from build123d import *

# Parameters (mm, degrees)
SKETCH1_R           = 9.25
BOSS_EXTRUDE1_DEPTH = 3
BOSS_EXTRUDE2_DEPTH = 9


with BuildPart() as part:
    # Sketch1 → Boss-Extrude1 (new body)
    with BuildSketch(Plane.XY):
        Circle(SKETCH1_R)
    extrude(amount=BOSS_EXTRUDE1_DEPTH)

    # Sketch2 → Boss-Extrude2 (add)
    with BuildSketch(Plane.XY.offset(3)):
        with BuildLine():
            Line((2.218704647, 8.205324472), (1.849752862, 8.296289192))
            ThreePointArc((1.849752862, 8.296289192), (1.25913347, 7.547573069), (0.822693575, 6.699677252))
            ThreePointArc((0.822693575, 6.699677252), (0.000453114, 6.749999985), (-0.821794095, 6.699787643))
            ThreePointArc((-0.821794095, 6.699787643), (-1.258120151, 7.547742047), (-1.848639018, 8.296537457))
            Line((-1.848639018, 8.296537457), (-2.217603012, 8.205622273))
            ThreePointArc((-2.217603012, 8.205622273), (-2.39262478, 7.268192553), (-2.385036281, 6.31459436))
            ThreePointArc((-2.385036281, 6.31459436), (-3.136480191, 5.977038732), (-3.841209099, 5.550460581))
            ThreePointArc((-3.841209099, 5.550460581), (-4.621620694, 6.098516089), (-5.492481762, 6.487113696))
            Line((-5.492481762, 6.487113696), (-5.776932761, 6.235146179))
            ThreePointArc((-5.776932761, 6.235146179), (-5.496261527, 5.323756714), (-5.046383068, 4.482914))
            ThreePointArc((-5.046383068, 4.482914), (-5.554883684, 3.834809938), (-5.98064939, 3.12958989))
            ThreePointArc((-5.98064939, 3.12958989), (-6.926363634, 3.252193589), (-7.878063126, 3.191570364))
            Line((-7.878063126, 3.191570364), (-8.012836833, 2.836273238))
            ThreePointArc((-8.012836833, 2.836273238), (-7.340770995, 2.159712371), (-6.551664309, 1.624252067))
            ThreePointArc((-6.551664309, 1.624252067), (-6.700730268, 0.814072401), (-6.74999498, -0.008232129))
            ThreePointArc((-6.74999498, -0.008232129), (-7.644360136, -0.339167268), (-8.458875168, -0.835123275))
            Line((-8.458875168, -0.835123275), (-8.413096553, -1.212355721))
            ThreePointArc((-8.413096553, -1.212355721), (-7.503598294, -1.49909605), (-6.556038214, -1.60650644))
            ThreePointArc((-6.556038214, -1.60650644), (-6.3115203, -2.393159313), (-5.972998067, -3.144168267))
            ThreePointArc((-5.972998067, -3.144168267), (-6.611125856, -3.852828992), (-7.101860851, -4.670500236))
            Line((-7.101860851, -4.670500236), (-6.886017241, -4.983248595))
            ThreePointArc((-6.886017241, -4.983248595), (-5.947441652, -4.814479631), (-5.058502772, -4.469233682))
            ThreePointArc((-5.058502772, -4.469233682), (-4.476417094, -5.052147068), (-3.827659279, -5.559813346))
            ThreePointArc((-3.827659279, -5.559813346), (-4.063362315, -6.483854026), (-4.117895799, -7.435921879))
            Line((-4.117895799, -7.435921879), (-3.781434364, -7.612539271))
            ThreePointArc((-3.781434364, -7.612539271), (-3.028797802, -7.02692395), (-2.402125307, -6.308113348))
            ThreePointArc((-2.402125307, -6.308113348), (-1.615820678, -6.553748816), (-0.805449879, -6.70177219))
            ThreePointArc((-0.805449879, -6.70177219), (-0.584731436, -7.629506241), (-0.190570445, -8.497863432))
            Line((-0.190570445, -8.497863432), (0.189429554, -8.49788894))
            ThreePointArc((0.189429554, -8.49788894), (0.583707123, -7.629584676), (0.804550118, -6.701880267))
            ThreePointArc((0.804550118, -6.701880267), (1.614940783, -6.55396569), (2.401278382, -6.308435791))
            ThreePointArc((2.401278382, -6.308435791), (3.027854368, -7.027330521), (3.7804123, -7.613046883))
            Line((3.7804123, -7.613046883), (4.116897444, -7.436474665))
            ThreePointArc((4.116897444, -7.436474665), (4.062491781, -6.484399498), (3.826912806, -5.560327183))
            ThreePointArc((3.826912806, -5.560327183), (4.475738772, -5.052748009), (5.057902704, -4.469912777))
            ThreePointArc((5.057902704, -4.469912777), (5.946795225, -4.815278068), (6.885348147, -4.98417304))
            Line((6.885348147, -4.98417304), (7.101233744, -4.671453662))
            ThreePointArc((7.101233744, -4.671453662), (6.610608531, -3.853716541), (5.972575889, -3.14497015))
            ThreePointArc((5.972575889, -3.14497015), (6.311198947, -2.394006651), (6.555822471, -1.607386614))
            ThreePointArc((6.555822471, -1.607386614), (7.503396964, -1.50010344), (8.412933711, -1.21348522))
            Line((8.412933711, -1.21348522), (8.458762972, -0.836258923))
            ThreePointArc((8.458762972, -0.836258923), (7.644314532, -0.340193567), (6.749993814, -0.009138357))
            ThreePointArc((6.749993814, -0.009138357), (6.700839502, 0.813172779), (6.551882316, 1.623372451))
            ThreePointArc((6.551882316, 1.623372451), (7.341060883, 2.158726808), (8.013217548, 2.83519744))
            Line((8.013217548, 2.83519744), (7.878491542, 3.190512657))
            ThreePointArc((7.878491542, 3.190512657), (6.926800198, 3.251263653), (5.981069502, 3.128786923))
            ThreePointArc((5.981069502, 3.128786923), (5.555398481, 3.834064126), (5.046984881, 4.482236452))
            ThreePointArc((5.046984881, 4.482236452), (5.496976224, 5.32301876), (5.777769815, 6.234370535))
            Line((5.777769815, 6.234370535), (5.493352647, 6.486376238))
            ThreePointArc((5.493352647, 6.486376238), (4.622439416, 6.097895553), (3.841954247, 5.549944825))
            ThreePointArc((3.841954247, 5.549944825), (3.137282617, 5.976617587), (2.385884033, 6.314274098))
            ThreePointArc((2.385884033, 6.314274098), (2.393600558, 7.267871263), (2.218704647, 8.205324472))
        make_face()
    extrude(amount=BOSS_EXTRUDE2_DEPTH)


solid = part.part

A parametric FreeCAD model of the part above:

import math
import FreeCAD as App
import Part
import Sketcher
from FreeCAD import Vector
Q = App.Units.Quantity

doc = App.newDocument("Part")
body = doc.addObject("PartDesign::Body", "Body")

sketch1 = body.newObject("Sketcher::SketchObject", "Sketch")
sketch1.AttachmentSupport = (doc.getObject("XY_Plane"), [""])
sketch1.MapMode = "FlatFace"
sketch1.addGeometry(Part.Circle(Vector(0, 0, 0), Vector(0, 0, 1), 9), False)
sketch1.addConstraint(Sketcher.Constraint("Coincident", 0, 3, -1, 1))
sketch1.addConstraint(Sketcher.Constraint("Diameter", 0, Q("18.5 mm")))
pad1 = body.newObject("PartDesign::Pad", "Pad")
pad1.Profile = sketch1
pad1.Length = 3

sketch2 = body.newObject("Sketcher::SketchObject", "Sketch001")
sketch2.AttachmentSupport = (doc.getObject("XY_Plane"), [""])
sketch2.MapMode = "FlatFace"
sketch2.AttachmentOffset = App.Placement(Vector(0, 0, 3), App.Rotation())
sketch2.addGeometry(Part.LineSegment(Vector(2.22, 8.21, 0), Vector(1.85, 8.3, 0)), False)
sketch2.addGeometry(Part.ArcOfCircle(Part.Circle(Vector(5.43, 4.86, 0), Vector(0, 0, 1), 4.96), math.radians(136), math.radians(158)), False)
sketch2.addGeometry(Part.ArcOfCircle(Part.Circle(Vector(0, 0, 0), Vector(0, 0, 1), 6.75), math.radians(83), math.radians(96.99)), False)
sketch2.addGeometry(Part.ArcOfCircle(Part.Circle(Vector(-5.43, 4.86, 0), Vector(0, 0, 1), 4.96), math.radians(22), math.radians(44)), False)
sketch2.addGeometry(Part.LineSegment(Vector(-1.85, 8.3, 0), Vector(-2.22, 8.21, 0)), False)
sketch2.addGeometry(Part.ArcOfCircle(Part.Circle(Vector(2.55, 6.83, 0), Vector(0, 0, 1), 4.96), math.radians(164), math.radians(186)), False)
sketch2.addGeometry(Part.ArcOfCircle(Part.Circle(Vector(0, 0, 0), Vector(0, 0, 1), 6.75), math.radians(110.69), math.radians(124.69)), False)
sketch2.addGeometry(Part.ArcOfCircle(Part.Circle(Vector(-7.07, 1.78, 0), Vector(0, 0, 1), 4.96), math.radians(49), math.radians(71)), False)
sketch2.addGeometry(Part.LineSegment(Vector(-5.49, 6.49, 0), Vector(-5.78, 6.24, 0)), False)
sketch2.addGeometry(Part.ArcOfCircle(Part.Circle(Vector(-0.92, 7.23, 0), Vector(0, 0, 1), 4.96), math.radians(-168), math.radians(-146)), False)
sketch2.addGeometry(Part.ArcOfCircle(Part.Circle(Vector(0, 0, 0), Vector(0, 0, 1), 6.75), math.radians(138.38), math.radians(152.38)), False)
sketch2.addGeometry(Part.ArcOfCircle(Part.Circle(Vector(-7.09, -1.71, 0), Vector(0, 0, 1), 4.96), math.radians(77), math.radians(99)), False)
sketch2.addGeometry(Part.LineSegment(Vector(-7.88, 3.19, 0), Vector(-8.01, 2.84, 0)), False)
sketch2.addGeometry(Part.ArcOfCircle(Part.Circle(Vector(-4.17, 5.98, 0), Vector(0, 0, 1), 4.96), math.radians(-141), math.radians(-119)), False)
sketch2.addGeometry(Part.ArcOfCircle(Part.Circle(Vector(0, 0, 0), Vector(0, 0, 1), 6.75), math.radians(166.08), math.radians(180.07)), False)
sketch2.addGeometry(Part.ArcOfCircle(Part.Circle(Vector(-5.48, -4.8, 0), Vector(0, 0, 1), 4.96), math.radians(105), math.radians(127)), False)
sketch2.addGeometry(Part.LineSegment(Vector(-8.46, -0.84, 0), Vector(-8.41, -1.21, 0)), False)
sketch2.addGeometry(Part.ArcOfCircle(Part.Circle(Vector(-6.47, 3.35, 0), Vector(0, 0, 1), 4.96), math.radians(-113), math.radians(-91)), False)
sketch2.addGeometry(Part.ArcOfCircle(Part.Circle(Vector(0, 0, 0), Vector(0, 0, 1), 6.75), math.radians(-166.23), math.radians(-152.24)), False)
sketch2.addGeometry(Part.ArcOfCircle(Part.Circle(Vector(-2.62, -6.8, 0), Vector(0, 0, 1), 4.96), math.radians(132), math.radians(155)), False)
sketch2.addGeometry(Part.LineSegment(Vector(-7.1, -4.67, 0), Vector(-6.89, -4.98, 0)), False)
sketch2.addGeometry(Part.ArcOfCircle(Part.Circle(Vector(-7.29, -0.04, 0), Vector(0, 0, 1), 4.96), math.radians(-85), math.radians(-63)), False)
sketch2.addGeometry(Part.ArcOfCircle(Part.Circle(Vector(0, 0, 0), Vector(0, 0, 1), 6.75), math.radians(-138.54), math.radians(-124.55)), False)
sketch2.addGeometry(Part.ArcOfCircle(Part.Circle(Vector(0.84, -7.24, 0), Vector(0, 0, 1), 4.96), math.radians(160), math.radians(182)), False)
sketch2.addGeometry(Part.LineSegment(Vector(-4.12, -7.44, 0), Vector(-3.78, -7.61, 0)), False)
sketch2.addGeometry(Part.ArcOfCircle(Part.Circle(Vector(-6.44, -3.42, 0), Vector(0, 0, 1), 4.96), math.radians(-58), math.radians(-36)), False)
sketch2.addGeometry(Part.ArcOfCircle(Part.Circle(Vector(0, 0, 0), Vector(0, 0, 1), 6.75), math.radians(-110.85), math.radians(-96.85)), False)
sketch2.addGeometry(Part.ArcOfCircle(Part.Circle(Vector(4.11, -6.02, 0), Vector(0, 0, 1), 4.96), math.radians(-172), math.radians(-150)), False)
sketch2.addGeometry(Part.LineSegment(Vector(-0.19, -8.5, 0), Vector(0.19, -8.5, 0)), False)
sketch2.addGeometry(Part.ArcOfCircle(Part.Circle(Vector(-4.11, -6.02, 0), Vector(0, 0, 1), 4.96), math.radians(-30), math.radians(-8)), False)
sketch2.addGeometry(Part.ArcOfCircle(Part.Circle(Vector(0, 0, 0), Vector(0, 0, 1), 6.75), math.radians(-83.15), math.radians(-69.16)), False)
sketch2.addGeometry(Part.ArcOfCircle(Part.Circle(Vector(6.44, -3.42, 0), Vector(0, 0, 1), 4.96), math.radians(-144), math.radians(-122)), False)
sketch2.addGeometry(Part.LineSegment(Vector(3.78, -7.61, 0), Vector(4.12, -7.44, 0)), False)
sketch2.addGeometry(Part.ArcOfCircle(Part.Circle(Vector(-0.84, -7.24, 0), Vector(0, 0, 1), 4.96), math.radians(-2), math.radians(20)), False)
sketch2.addGeometry(Part.ArcOfCircle(Part.Circle(Vector(0, 0, 0), Vector(0, 0, 1), 6.75), math.radians(-55.46), math.radians(-41.47)), False)
sketch2.addGeometry(Part.ArcOfCircle(Part.Circle(Vector(7.29, -0.04, 0), Vector(0, 0, 1), 4.96), math.radians(-117), math.radians(-95)), False)
sketch2.addGeometry(Part.LineSegment(Vector(6.89, -4.98, 0), Vector(7.1, -4.67, 0)), False)
sketch2.addGeometry(Part.ArcOfCircle(Part.Circle(Vector(2.62, -6.8, 0), Vector(0, 0, 1), 4.96), math.radians(25), math.radians(48)), False)
sketch2.addGeometry(Part.ArcOfCircle(Part.Circle(Vector(0, 0, 0), Vector(0, 0, 1), 6.75), math.radians(-27.77), math.radians(-13.78)), False)
sketch2.addGeometry(Part.ArcOfCircle(Part.Circle(Vector(6.47, 3.35, 0), Vector(0, 0, 1), 4.96), math.radians(-89), math.radians(-67)), False)
sketch2.addGeometry(Part.LineSegment(Vector(8.41, -1.21, 0), Vector(8.46, -0.84, 0)), False)
sketch2.addGeometry(Part.ArcOfCircle(Part.Circle(Vector(5.48, -4.81, 0), Vector(0, 0, 1), 4.96), math.radians(53), math.radians(75)), False)
sketch2.addGeometry(Part.ArcOfCircle(Part.Circle(Vector(0, 0, 0), Vector(0, 0, 1), 6.75), math.radians(-0.08), math.radians(13.92)), False)
sketch2.addGeometry(Part.ArcOfCircle(Part.Circle(Vector(4.17, 5.98, 0), Vector(0, 0, 1), 4.96), math.radians(-61), math.radians(-39)), False)
sketch2.addGeometry(Part.LineSegment(Vector(8.01, 2.84, 0), Vector(7.88, 3.19, 0)), False)
sketch2.addGeometry(Part.ArcOfCircle(Part.Circle(Vector(7.09, -1.71, 0), Vector(0, 0, 1), 4.96), math.radians(81), math.radians(103)), False)
sketch2.addGeometry(Part.ArcOfCircle(Part.Circle(Vector(0, 0, 0), Vector(0, 0, 1), 6.75), math.radians(27.61), math.radians(41.61)), False)
sketch2.addGeometry(Part.ArcOfCircle(Part.Circle(Vector(0.92, 7.23, 0), Vector(0, 0, 1), 4.96), math.radians(-34), math.radians(-12)), False)
sketch2.addGeometry(Part.LineSegment(Vector(5.78, 6.23, 0), Vector(5.49, 6.49, 0)), False)
sketch2.addGeometry(Part.ArcOfCircle(Part.Circle(Vector(7.07, 1.78, 0), Vector(0, 0, 1), 4.96), math.radians(109), math.radians(131)), False)
sketch2.addGeometry(Part.ArcOfCircle(Part.Circle(Vector(0, 0, 0), Vector(0, 0, 1), 6.75), math.radians(55.31), math.radians(69.3)), False)
sketch2.addGeometry(Part.ArcOfCircle(Part.Circle(Vector(-2.55, 6.83, 0), Vector(0, 0, 1), 4.96), math.radians(-6), math.radians(16)), False)
sketch2.addConstraint(Sketcher.Constraint("Coincident", 0, 2, 1, 1))
sketch2.addConstraint(Sketcher.Constraint("Coincident", 1, 2, 2, 1))
sketch2.addConstraint(Sketcher.Constraint("Coincident", 2, 2, 3, 1))
sketch2.addConstraint(Sketcher.Constraint("Coincident", 3, 2, 4, 1))
sketch2.addConstraint(Sketcher.Constraint("Coincident", 4, 2, 5, 1))
sketch2.addConstraint(Sketcher.Constraint("Coincident", 5, 2, 6, 1))
sketch2.addConstraint(Sketcher.Constraint("Coincident", 6, 2, 7, 1))
sketch2.addConstraint(Sketcher.Constraint("Coincident", 7, 2, 8, 1))
sketch2.addConstraint(Sketcher.Constraint("Coincident", 8, 2, 9, 1))
sketch2.addConstraint(Sketcher.Constraint("Coincident", 9, 2, 10, 1))
sketch2.addConstraint(Sketcher.Constraint("Coincident", 10, 2, 11, 1))
sketch2.addConstraint(Sketcher.Constraint("Coincident", 11, 2, 12, 1))
sketch2.addConstraint(Sketcher.Constraint("Coincident", 12, 2, 13, 1))
sketch2.addConstraint(Sketcher.Constraint("Coincident", 13, 2, 14, 1))
sketch2.addConstraint(Sketcher.Constraint("Coincident", 14, 2, 15, 1))
sketch2.addConstraint(Sketcher.Constraint("Coincident", 15, 2, 16, 1))
sketch2.addConstraint(Sketcher.Constraint("Coincident", 16, 2, 17, 1))
sketch2.addConstraint(Sketcher.Constraint("Coincident", 17, 2, 18, 1))
sketch2.addConstraint(Sketcher.Constraint("Coincident", 18, 2, 19, 1))
sketch2.addConstraint(Sketcher.Constraint("Coincident", 19, 2, 20, 1))
sketch2.addConstraint(Sketcher.Constraint("Coincident", 20, 2, 21, 1))
sketch2.addConstraint(Sketcher.Constraint("Coincident", 21, 2, 22, 1))
sketch2.addConstraint(Sketcher.Constraint("Coincident", 22, 2, 23, 1))
sketch2.addConstraint(Sketcher.Constraint("Coincident", 23, 2, 24, 1))
sketch2.addConstraint(Sketcher.Constraint("Coincident", 24, 2, 25, 1))
sketch2.addConstraint(Sketcher.Constraint("Coincident", 25, 2, 26, 1))
sketch2.addConstraint(Sketcher.Constraint("Coincident", 26, 2, 27, 1))
sketch2.addConstraint(Sketcher.Constraint("Coincident", 27, 2, 28, 1))
sketch2.addConstraint(Sketcher.Constraint("Coincident", 28, 2, 29, 1))
sketch2.addConstraint(Sketcher.Constraint("Coincident", 29, 2, 30, 1))
sketch2.addConstraint(Sketcher.Constraint("Coincident", 30, 2, 31, 1))
sketch2.addConstraint(Sketcher.Constraint("Coincident", 31, 2, 32, 1))
sketch2.addConstraint(Sketcher.Constraint("Coincident", 32, 2, 33, 1))
sketch2.addConstraint(Sketcher.Constraint("Coincident", 33, 2, 34, 1))
sketch2.addConstraint(Sketcher.Constraint("Coincident", 34, 2, 35, 1))
sketch2.addConstraint(Sketcher.Constraint("Coincident", 35, 2, 36, 1))
sketch2.addConstraint(Sketcher.Constraint("Coincident", 36, 2, 37, 1))
sketch2.addConstraint(Sketcher.Constraint("Coincident", 37, 2, 38, 1))
sketch2.addConstraint(Sketcher.Constraint("Coincident", 38, 2, 39, 1))
sketch2.addConstraint(Sketcher.Constraint("Coincident", 39, 2, 40, 1))
sketch2.addConstraint(Sketcher.Constraint("Coincident", 40, 2, 41, 1))
sketch2.addConstraint(Sketcher.Constraint("Coincident", 41, 2, 42, 1))
sketch2.addConstraint(Sketcher.Constraint("Coincident", 42, 2, 43, 1))
sketch2.addConstraint(Sketcher.Constraint("Coincident", 43, 2, 44, 1))
sketch2.addConstraint(Sketcher.Constraint("Coincident", 44, 2, 45, 1))
sketch2.addConstraint(Sketcher.Constraint("Coincident", 45, 2, 46, 1))
sketch2.addConstraint(Sketcher.Constraint("Coincident", 46, 2, 47, 1))
sketch2.addConstraint(Sketcher.Constraint("Coincident", 47, 2, 48, 1))
sketch2.addConstraint(Sketcher.Constraint("Coincident", 48, 2, 49, 1))
sketch2.addConstraint(Sketcher.Constraint("Coincident", 49, 2, 50, 1))
sketch2.addConstraint(Sketcher.Constraint("Coincident", 50, 2, 51, 1))
sketch2.addConstraint(Sketcher.Constraint("Coincident", 51, 2, 0, 1))
sketch2.addConstraint(Sketcher.Constraint("Coincident", 2, 3, -1, 1))
sketch2.addConstraint(Sketcher.Constraint("Coincident", 6, 3, -1, 1))
sketch2.addConstraint(Sketcher.Constraint("Coincident", 10, 3, -1, 1))
sketch2.addConstraint(Sketcher.Constraint("Coincident", 14, 3, -1, 1))
sketch2.addConstraint(Sketcher.Constraint("Coincident", 18, 3, -1, 1))
sketch2.addConstraint(Sketcher.Constraint("Coincident", 22, 3, -1, 1))
sketch2.addConstraint(Sketcher.Constraint("Coincident", 26, 3, -1, 1))
sketch2.addConstraint(Sketcher.Constraint("Coincident", 30, 3, -1, 1))
sketch2.addConstraint(Sketcher.Constraint("Coincident", 34, 3, -1, 1))
sketch2.addConstraint(Sketcher.Constraint("Coincident", 38, 3, -1, 1))
sketch2.addConstraint(Sketcher.Constraint("Coincident", 42, 3, -1, 1))
sketch2.addConstraint(Sketcher.Constraint("Coincident", 46, 3, -1, 1))
sketch2.addConstraint(Sketcher.Constraint("Coincident", 50, 3, -1, 1))
sketch2.addConstraint(Sketcher.Constraint("Equal", 1, 3))
sketch2.addConstraint(Sketcher.Constraint("Equal", 3, 5))
sketch2.addConstraint(Sketcher.Constraint("Equal", 2, 6))
sketch2.addConstraint(Sketcher.Constraint("Equal", 5, 7))
sketch2.addConstraint(Sketcher.Constraint("Equal", 7, 9))
sketch2.addConstraint(Sketcher.Constraint("Equal", 6, 10))
sketch2.addConstraint(Sketcher.Constraint("Equal", 9, 11))
sketch2.addConstraint(Sketcher.Constraint("Equal", 11, 13))
sketch2.addConstraint(Sketcher.Constraint("Equal", 10, 14))
sketch2.addConstraint(Sketcher.Constraint("Equal", 13, 15))
sketch2.addConstraint(Sketcher.Constraint("Equal", 15, 17))
sketch2.addConstraint(Sketcher.Constraint("Equal", 14, 18))
sketch2.addConstraint(Sketcher.Constraint("Equal", 17, 19))
sketch2.addConstraint(Sketcher.Constraint("Equal", 19, 21))
sketch2.addConstraint(Sketcher.Constraint("Equal", 18, 22))
sketch2.addConstraint(Sketcher.Constraint("Equal", 21, 23))
sketch2.addConstraint(Sketcher.Constraint("Equal", 23, 25))
sketch2.addConstraint(Sketcher.Constraint("Equal", 22, 26))
sketch2.addConstraint(Sketcher.Constraint("Equal", 25, 27))
sketch2.addConstraint(Sketcher.Constraint("Equal", 27, 29))
sketch2.addConstraint(Sketcher.Constraint("Equal", 26, 30))
sketch2.addConstraint(Sketcher.Constraint("Equal", 29, 31))
sketch2.addConstraint(Sketcher.Constraint("Equal", 31, 33))
sketch2.addConstraint(Sketcher.Constraint("Equal", 30, 34))
sketch2.addConstraint(Sketcher.Constraint("Equal", 33, 35))
sketch2.addConstraint(Sketcher.Constraint("Equal", 35, 37))
sketch2.addConstraint(Sketcher.Constraint("Equal", 34, 38))
sketch2.addConstraint(Sketcher.Constraint("Equal", 37, 39))
sketch2.addConstraint(Sketcher.Constraint("Equal", 39, 41))
sketch2.addConstraint(Sketcher.Constraint("Equal", 38, 42))
sketch2.addConstraint(Sketcher.Constraint("Equal", 41, 43))
sketch2.addConstraint(Sketcher.Constraint("Equal", 43, 45))
sketch2.addConstraint(Sketcher.Constraint("Equal", 42, 46))
sketch2.addConstraint(Sketcher.Constraint("Equal", 45, 47))
sketch2.addConstraint(Sketcher.Constraint("Equal", 47, 49))
sketch2.addConstraint(Sketcher.Constraint("Equal", 46, 50))
sketch2.addConstraint(Sketcher.Constraint("Equal", 49, 51))
sketch2.addConstraint(Sketcher.Constraint("Equal", 0, 4))
sketch2.addConstraint(Sketcher.Constraint("Equal", 4, 8))
sketch2.addConstraint(Sketcher.Constraint("Equal", 8, 12))
sketch2.addConstraint(Sketcher.Constraint("Equal", 12, 16))
sketch2.addConstraint(Sketcher.Constraint("Equal", 16, 20))
sketch2.addConstraint(Sketcher.Constraint("Equal", 20, 24))
sketch2.addConstraint(Sketcher.Constraint("Equal", 24, 28))
sketch2.addConstraint(Sketcher.Constraint("Equal", 28, 32))
sketch2.addConstraint(Sketcher.Constraint("Equal", 32, 36))
sketch2.addConstraint(Sketcher.Constraint("Equal", 36, 40))
sketch2.addConstraint(Sketcher.Constraint("Equal", 40, 44))
sketch2.addConstraint(Sketcher.Constraint("Equal", 44, 48))
sketch2.addConstraint(Sketcher.Constraint("Radius", 2, Q("6.75 mm")))
sketch2.addConstraint(Sketcher.Constraint("Angle", 0, Q("166.15 deg")))
sketch2.addConstraint(Sketcher.Constraint("Distance", 0, Q("0.38 mm")))
sketch2.addConstraint(Sketcher.Constraint("DistanceX", 18, 2, -1, 1, Q("5.972998 mm")))
sketch2.addConstraint(Sketcher.Constraint("Radius", 1, Q("4.960637 mm")))
sketch2.addConstraint(Sketcher.Constraint("DistanceY", 11, 3, -1, 1, Q("1.705799 mm")))
sketch2.addConstraint(Sketcher.Constraint("DistanceY", 19, 2, -1, 1, Q("4.6705 mm")))
sketch2.addConstraint(Sketcher.Constraint("DistanceY", -1, 1, 1, 3, Q("4.86384 mm")))
sketch2.addConstraint(Sketcher.Constraint("DistanceX", 3, 3, -1, 1, Q("5.43047 mm")))
sketch2.addConstraint(Sketcher.Constraint("DistanceY", -1, 1, 3, 3, Q("4.864569 mm")))
sketch2.addConstraint(Sketcher.Constraint("DistanceX", -1, 1, 5, 3, Q("2.548682 mm")))
sketch2.addConstraint(Sketcher.Constraint("DistanceX", 7, 3, -1, 1, Q("7.06912 mm")))
sketch2.addConstraint(Sketcher.Constraint("DistanceX", 11, 3, -1, 1, Q("7.08832 mm")))
sketch2.addConstraint(Sketcher.Constraint("DistanceX", 15, 3, -1, 1, Q("5.483672 mm")))
sketch2.addConstraint(Sketcher.Constraint("DistanceX", 17, 3, -1, 1, Q("6.473672 mm")))
sketch2.addConstraint(Sketcher.Constraint("DistanceX", 19, 3, -1, 1, Q("2.62278 mm")))
sketch2.addConstraint(Sketcher.Constraint("DistanceX", -1, 1, 23, 3, Q("0.838959 mm")))
sketch2.addConstraint(Sketcher.Constraint("DistanceY", 23, 3, -1, 1, Q("7.24225 mm")))
sketch2.addConstraint(Sketcher.Constraint("DistanceY", 27, 3, -1, 1, Q("6.02281 mm")))
sketch2.addConstraint(Sketcher.Constraint("DistanceX", 29, 3, -1, 1, Q("4.109311 mm")))
sketch2.addConstraint(Sketcher.Constraint("DistanceY", 29, 3, -1, 1, Q("6.022258 mm")))
sketch2.addConstraint(Sketcher.Constraint("DistanceX", 33, 3, -1, 1, Q("0.839932 mm")))
sketch2.addConstraint(Sketcher.Constraint("DistanceX", -1, 1, 35, 3, Q("7.290571 mm")))
sketch2.addConstraint(Sketcher.Constraint("DistanceY", 37, 3, -1, 1, Q("6.80293 mm")))
sketch2.addConstraint(Sketcher.Constraint("DistanceX", -1, 1, 43, 3, Q("4.17453 mm")))
sketch2.addConstraint(Sketcher.Constraint("DistanceX", -1, 1, 45, 3, Q("7.088091 mm")))
sketch2.addConstraint(Sketcher.Constraint("DistanceY", 45, 3, -1, 1, Q("1.706751 mm")))
sketch2.addConstraint(Sketcher.Constraint("DistanceY", -1, 1, 47, 3, Q("7.232579 mm")))
sketch2.addConstraint(Sketcher.Constraint("DistanceX", -1, 1, 49, 3, Q("7.06936 mm")))
sketch2.addConstraint(Sketcher.Constraint("DistanceY", -1, 1, 0, 2, Q("8.296289 mm")))
sketch2.addConstraint(Sketcher.Constraint("DistanceX", 3, 2, -1, 1, Q("1.848639 mm")))
sketch2.addConstraint(Sketcher.Constraint("DistanceX", 6, 2, -1, 1, Q("3.841209 mm")))
sketch2.addConstraint(Sketcher.Constraint("DistanceX", 7, 2, -1, 1, Q("5.492482 mm")))
sketch2.addConstraint(Sketcher.Constraint("DistanceY", -1, 1, 11, 2, Q("3.19157 mm")))
sketch2.addConstraint(Sketcher.Constraint("DistanceX", 17, 2, -1, 1, Q("6.556038 mm")))
sketch2.addConstraint(Sketcher.Constraint("DistanceY", 20, 2, -1, 1, Q("4.983249 mm")))
sketch2.addConstraint(Sketcher.Constraint("DistanceY", 23, 2, -1, 1, Q("7.435922 mm")))
sketch2.addConstraint(Sketcher.Constraint("DistanceY", 24, 2, -1, 1, Q("7.612539 mm")))
sketch2.addConstraint(Sketcher.Constraint("DistanceX", 26, 2, -1, 1, Q("0.80545 mm")))
sketch2.addConstraint(Sketcher.Constraint("DistanceX", 27, 2, -1, 1, Q("0.19057 mm")))
sketch2.addConstraint(Sketcher.Constraint("DistanceX", -1, 1, 30, 2, Q("2.401278 mm")))
sketch2.addConstraint(Sketcher.Constraint("DistanceX", -1, 1, 35, 2, Q("6.885348 mm")))
sketch2.addConstraint(Sketcher.Constraint("DistanceY", 37, 2, -1, 1, Q("3.14497 mm")))
sketch2.addConstraint(Sketcher.Constraint("DistanceY", 40, 2, -1, 1, Q("0.836259 mm")))
sketch2.addConstraint(Sketcher.Constraint("DistanceY", 41, 2, -1, 1, Q("0.009138 mm")))
sketch2.addConstraint(Sketcher.Constraint("DistanceX", -1, 1, 44, 2, Q("7.878492 mm")))
sketch2.addConstraint(Sketcher.Constraint("DistanceX", -1, 1, 47, 2, Q("5.77777 mm")))
sketch2.addConstraint(Sketcher.Constraint("DistanceY", -1, 1, 47, 2, Q("6.234371 mm")))
sketch2.addConstraint(Sketcher.Constraint("DistanceX", -1, 1, 1, 3, Q("5.431123 mm")))
sketch2.addConstraint(Sketcher.Constraint("DistanceY", -1, 1, 5, 3, Q("6.830685 mm")))
sketch2.addConstraint(Sketcher.Constraint("DistanceX", 9, 3, -1, 1, Q("0.917632 mm")))
sketch2.addConstraint(Sketcher.Constraint("DistanceY", -1, 1, 9, 3, Q("7.232703 mm")))
sketch2.addConstraint(Sketcher.Constraint("DistanceX", 13, 3, -1, 1, Q("4.173727 mm")))
sketch2.addConstraint(Sketcher.Constraint("DistanceY", -1, 1, 13, 3, Q("5.977795 mm")))
sketch2.addConstraint(Sketcher.Constraint("DistanceY", 15, 3, -1, 1, Q("4.804517 mm")))
sketch2.addConstraint(Sketcher.Constraint("DistanceX", 21, 3, -1, 1, Q("7.290576 mm")))
sketch2.addConstraint(Sketcher.Constraint("DistanceX", 25, 3, -1, 1, Q("6.437298 mm")))
sketch2.addConstraint(Sketcher.Constraint("DistanceX", -1, 1, 31, 3, Q("6.436838 mm")))
sketch2.addConstraint(Sketcher.Constraint("DistanceY", 33, 3, -1, 1, Q("7.242137 mm")))
sketch2.addConstraint(Sketcher.Constraint("DistanceY", 35, 3, -1, 1, Q("0.040114 mm")))
sketch2.addConstraint(Sketcher.Constraint("DistanceX", -1, 1, 39, 3, Q("6.474122 mm")))
sketch2.addConstraint(Sketcher.Constraint("DistanceY", -1, 1, 39, 3, Q("3.352578 mm")))
sketch2.addConstraint(Sketcher.Constraint("DistanceX", -1, 1, 41, 3, Q("5.483026 mm")))
sketch2.addConstraint(Sketcher.Constraint("DistanceY", -1, 1, 43, 3, Q("5.977235 mm")))
sketch2.addConstraint(Sketcher.Constraint("DistanceY", -1, 1, 49, 3, Q("1.782748 mm")))
sketch2.addConstraint(Sketcher.Constraint("DistanceX", 51, 3, -1, 1, Q("2.547764 mm")))
sketch2.addConstraint(Sketcher.Constraint("DistanceX", 15, 2, -1, 1, Q("8.458875 mm")))
sketch2.addConstraint(Sketcher.Constraint("DistanceX", -1, 1, 31, 2, Q("3.780412 mm")))
pad2 = body.newObject("PartDesign::Pad", "Pad001")
pad2.Profile = sketch2
pad2.Length = 9

doc.recompute()
